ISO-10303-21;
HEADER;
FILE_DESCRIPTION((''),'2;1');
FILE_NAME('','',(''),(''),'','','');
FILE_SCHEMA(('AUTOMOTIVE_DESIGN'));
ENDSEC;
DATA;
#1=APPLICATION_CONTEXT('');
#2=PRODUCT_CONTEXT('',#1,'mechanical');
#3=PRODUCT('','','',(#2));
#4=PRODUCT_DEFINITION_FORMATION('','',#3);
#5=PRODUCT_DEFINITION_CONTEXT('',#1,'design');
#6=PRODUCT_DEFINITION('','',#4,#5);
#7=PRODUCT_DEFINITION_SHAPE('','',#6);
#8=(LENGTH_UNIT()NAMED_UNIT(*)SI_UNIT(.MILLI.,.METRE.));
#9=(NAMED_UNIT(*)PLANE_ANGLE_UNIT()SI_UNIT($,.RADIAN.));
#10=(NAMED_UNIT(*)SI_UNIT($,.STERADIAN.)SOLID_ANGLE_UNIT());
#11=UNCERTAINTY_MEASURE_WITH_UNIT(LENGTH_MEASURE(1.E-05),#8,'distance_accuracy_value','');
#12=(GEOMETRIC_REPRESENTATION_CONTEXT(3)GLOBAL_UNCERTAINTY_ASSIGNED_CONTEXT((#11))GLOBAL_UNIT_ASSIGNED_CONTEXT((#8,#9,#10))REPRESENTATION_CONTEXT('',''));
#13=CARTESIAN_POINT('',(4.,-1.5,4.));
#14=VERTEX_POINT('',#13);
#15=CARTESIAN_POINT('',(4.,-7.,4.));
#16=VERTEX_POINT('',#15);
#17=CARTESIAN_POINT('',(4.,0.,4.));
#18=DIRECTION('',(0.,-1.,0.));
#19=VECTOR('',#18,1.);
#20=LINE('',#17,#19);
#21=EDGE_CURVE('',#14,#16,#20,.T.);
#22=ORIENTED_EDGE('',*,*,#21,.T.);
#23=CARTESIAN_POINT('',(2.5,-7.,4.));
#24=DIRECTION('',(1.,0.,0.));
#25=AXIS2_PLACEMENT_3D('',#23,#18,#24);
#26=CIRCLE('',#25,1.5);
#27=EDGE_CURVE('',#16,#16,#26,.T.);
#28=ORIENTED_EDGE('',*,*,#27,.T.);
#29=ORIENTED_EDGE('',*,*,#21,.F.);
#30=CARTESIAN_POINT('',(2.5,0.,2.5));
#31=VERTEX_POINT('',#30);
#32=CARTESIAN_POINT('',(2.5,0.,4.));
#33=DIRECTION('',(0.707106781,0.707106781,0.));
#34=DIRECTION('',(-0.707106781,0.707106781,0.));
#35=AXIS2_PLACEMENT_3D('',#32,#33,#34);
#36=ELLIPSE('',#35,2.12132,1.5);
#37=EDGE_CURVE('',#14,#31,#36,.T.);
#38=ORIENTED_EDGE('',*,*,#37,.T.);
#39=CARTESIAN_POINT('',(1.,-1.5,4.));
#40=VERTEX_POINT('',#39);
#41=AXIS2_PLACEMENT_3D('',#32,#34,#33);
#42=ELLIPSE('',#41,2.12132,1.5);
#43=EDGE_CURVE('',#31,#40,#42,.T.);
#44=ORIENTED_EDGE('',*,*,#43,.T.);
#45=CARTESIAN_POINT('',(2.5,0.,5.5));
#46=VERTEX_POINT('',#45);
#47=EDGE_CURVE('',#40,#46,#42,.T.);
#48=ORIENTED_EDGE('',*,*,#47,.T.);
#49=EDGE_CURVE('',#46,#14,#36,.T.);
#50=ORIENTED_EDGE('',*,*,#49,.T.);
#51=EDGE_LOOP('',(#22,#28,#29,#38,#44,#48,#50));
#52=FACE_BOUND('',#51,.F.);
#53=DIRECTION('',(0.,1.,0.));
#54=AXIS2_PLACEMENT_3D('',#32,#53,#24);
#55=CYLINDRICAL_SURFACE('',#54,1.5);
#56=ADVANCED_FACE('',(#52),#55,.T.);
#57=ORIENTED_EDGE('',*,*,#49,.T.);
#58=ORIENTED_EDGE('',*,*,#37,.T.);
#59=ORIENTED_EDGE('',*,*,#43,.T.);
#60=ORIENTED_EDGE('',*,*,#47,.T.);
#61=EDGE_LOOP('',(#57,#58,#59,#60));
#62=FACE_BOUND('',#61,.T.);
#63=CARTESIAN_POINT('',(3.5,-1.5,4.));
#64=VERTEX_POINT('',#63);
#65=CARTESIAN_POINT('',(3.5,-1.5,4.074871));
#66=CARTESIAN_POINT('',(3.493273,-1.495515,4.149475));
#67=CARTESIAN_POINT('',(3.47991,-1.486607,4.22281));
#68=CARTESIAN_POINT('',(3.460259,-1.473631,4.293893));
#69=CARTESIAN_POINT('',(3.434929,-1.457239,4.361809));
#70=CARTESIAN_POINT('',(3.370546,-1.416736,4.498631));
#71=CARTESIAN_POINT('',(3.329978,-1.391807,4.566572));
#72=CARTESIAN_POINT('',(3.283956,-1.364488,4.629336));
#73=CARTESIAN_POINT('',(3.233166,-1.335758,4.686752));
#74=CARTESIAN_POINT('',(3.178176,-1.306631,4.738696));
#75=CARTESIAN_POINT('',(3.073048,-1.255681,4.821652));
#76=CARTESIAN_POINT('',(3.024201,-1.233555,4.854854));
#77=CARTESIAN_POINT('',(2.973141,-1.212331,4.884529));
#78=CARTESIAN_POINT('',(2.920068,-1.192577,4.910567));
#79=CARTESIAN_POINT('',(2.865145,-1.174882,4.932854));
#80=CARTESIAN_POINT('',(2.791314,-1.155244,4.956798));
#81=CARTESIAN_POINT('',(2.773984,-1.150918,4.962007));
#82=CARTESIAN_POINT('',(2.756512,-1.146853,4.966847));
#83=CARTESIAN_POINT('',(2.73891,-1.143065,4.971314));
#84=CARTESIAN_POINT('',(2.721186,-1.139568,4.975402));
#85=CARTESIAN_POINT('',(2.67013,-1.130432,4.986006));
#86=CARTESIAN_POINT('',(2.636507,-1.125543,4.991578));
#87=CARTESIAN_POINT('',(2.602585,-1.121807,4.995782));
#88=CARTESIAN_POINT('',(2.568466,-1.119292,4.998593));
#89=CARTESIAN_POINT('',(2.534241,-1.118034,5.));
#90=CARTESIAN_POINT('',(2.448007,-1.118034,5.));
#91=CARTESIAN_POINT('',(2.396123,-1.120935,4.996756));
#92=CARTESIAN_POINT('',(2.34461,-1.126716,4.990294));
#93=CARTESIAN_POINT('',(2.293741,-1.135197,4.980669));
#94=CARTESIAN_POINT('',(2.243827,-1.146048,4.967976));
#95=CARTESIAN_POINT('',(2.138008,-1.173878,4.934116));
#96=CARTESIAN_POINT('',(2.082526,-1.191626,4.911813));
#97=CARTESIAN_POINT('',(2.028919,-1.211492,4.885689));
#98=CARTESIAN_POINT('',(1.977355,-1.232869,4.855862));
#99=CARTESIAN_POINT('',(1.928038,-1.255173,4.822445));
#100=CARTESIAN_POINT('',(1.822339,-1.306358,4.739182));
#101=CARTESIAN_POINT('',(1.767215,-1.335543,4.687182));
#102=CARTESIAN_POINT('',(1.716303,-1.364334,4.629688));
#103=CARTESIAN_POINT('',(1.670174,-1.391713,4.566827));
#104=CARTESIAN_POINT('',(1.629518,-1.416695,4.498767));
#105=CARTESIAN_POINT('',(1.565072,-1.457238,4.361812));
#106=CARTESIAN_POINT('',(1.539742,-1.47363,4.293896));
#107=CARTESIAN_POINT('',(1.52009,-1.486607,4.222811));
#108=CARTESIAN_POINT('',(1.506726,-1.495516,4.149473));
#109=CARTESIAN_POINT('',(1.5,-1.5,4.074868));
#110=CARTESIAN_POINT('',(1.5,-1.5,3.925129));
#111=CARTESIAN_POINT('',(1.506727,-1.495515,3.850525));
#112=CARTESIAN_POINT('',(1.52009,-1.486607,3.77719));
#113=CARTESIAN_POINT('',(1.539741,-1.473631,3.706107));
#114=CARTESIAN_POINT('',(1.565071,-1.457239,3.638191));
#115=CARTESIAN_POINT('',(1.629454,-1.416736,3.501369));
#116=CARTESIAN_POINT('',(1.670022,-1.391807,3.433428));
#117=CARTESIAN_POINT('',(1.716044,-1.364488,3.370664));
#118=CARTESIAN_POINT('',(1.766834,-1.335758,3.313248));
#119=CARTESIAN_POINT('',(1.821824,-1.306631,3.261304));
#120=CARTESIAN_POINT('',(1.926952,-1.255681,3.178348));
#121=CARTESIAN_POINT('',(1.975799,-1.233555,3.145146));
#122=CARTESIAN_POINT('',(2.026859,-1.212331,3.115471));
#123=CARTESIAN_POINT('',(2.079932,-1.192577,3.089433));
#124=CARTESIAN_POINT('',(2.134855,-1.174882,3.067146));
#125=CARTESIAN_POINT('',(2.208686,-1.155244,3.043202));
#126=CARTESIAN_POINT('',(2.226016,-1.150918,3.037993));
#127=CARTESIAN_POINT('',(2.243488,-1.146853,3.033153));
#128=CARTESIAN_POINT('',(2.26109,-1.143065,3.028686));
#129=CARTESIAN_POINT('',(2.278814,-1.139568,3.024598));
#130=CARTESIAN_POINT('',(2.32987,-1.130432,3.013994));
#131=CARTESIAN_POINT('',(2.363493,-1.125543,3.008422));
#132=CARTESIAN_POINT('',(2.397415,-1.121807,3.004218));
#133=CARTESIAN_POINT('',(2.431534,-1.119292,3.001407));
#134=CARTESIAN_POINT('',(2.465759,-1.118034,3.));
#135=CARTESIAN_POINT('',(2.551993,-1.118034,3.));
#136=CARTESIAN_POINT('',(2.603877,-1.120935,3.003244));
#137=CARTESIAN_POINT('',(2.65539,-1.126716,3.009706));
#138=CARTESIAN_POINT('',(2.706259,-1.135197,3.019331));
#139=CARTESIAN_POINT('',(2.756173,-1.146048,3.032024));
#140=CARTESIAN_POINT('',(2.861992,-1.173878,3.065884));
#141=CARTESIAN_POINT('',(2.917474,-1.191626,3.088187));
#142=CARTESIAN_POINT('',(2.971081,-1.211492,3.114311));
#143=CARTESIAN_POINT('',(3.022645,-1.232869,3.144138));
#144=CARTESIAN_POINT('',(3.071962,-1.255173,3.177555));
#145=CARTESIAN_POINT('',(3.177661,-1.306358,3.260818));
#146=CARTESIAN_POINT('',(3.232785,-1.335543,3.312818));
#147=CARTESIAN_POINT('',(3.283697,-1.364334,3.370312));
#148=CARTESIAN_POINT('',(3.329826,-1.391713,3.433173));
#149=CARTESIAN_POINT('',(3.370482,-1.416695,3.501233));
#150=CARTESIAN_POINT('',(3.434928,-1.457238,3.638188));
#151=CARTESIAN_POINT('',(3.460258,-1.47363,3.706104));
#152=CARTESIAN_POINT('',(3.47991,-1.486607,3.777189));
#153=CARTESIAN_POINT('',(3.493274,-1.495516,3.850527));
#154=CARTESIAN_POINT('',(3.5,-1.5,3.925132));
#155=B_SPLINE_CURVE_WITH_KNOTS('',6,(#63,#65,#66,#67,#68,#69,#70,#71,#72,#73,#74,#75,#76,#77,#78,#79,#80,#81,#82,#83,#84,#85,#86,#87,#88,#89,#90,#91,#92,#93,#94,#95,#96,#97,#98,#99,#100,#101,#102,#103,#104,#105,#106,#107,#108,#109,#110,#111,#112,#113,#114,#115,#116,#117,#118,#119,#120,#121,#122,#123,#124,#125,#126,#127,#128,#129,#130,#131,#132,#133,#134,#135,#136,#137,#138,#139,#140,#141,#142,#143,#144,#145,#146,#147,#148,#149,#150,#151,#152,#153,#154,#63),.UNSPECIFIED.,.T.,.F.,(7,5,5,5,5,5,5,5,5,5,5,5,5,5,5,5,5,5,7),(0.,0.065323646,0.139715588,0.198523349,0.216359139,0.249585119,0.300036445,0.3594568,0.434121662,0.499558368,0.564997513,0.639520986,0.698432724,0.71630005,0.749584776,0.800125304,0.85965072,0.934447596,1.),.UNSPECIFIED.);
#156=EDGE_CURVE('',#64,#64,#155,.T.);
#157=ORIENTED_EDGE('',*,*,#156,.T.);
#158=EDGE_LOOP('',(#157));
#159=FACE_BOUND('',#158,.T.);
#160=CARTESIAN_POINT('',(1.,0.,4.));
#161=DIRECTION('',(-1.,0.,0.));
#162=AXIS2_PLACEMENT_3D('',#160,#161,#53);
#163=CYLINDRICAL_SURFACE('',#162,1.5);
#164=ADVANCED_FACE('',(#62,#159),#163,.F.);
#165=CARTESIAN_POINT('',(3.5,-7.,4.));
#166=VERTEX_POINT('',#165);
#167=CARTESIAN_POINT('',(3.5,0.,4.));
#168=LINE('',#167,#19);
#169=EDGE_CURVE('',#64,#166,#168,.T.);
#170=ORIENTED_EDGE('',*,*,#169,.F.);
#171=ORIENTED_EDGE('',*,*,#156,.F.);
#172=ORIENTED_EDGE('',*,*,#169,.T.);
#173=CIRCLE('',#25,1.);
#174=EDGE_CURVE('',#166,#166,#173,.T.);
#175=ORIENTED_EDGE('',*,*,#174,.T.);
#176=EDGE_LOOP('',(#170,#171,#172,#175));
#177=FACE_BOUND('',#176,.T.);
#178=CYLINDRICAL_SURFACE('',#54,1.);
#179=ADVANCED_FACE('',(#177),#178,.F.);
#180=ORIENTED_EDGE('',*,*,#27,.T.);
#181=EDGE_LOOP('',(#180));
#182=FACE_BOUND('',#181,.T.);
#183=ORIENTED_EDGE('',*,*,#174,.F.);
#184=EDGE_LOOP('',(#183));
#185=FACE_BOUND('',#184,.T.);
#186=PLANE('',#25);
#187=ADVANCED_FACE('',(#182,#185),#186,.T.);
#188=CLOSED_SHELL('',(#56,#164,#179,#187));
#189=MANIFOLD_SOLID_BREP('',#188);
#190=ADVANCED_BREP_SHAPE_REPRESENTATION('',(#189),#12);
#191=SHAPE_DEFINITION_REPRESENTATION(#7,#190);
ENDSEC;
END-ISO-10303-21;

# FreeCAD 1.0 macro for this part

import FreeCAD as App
import Part
import Sketcher

doc = App.newDocument("Part")
params = doc.addObject("Spreadsheet::Sheet", "Params")
for row, (alias, value) in enumerate([
    ("sketch1_diameter", "3 mm"),
    ("pad1_length", "3 mm"),
    ("sketch2_diameter", "3 mm"),
    ("sketch2_diameter2", "2 mm"),
    ("pad2_length", "7 mm"),
], start=1):
    params.set(f"A{row}", alias)
    params.set(f"B{row}", "=" + value)
    params.setAlias(f"B{row}", alias)

body = doc.addObject("PartDesign::Body", "Body")

# Sketch on YZ plane
sketch1 = body.newObject("Sketcher::SketchObject", "Sketch")
sketch1.AttachmentSupport = (doc.getObject("YZ_Plane"), [""])
sketch1.MapMode = "FlatFace"
sketch1.AttachmentOffset = App.Placement(App.Vector(0, 0, 1), App.Rotation())
sketch1.addGeometry(Part.Circle(App.Vector(0, 4, 0), App.Vector(0, 0, 1), 1.5), False)
sketch1.addConstraint([
    Sketcher.Constraint("PointOnObject", 0, 3, -2),
    Sketcher.Constraint("Diameter", 0, 3.0),
    Sketcher.Constraint("DistanceY", -1, 1, 0, 3, 4.0),
])
sketch1.setExpression("Constraints[1]", "Params.sketch1_diameter")
pad1 = body.newObject("PartDesign::Pad", "Pad")
pad1.Profile = sketch1
pad1.setExpression("Length", "Params.pad1_length")
body2 = doc.addObject("PartDesign::Body", "Body001")

# Sketch on XZ plane
sketch2 = body2.newObject("Sketcher::SketchObject", "Sketch001")
sketch2.AttachmentSupport = (doc.getObject("XZ_Plane001"), [""])
sketch2.MapMode = "FlatFace"
sketch2.addGeometry([
    Part.Circle(App.Vector(2.5, 4, 0), App.Vector(0, 0, 1), 1.5),
    Part.Circle(App.Vector(2.5, 4, 0), App.Vector(0, 0, 1), 1),
], False)
sketch2.addConstraint([
    Sketcher.Constraint("Coincident", 1, 3, 0, 3),
    Sketcher.Constraint("Diameter", 0, 3.0),
    Sketcher.Constraint("Diameter", 1, 2.0),
    Sketcher.Constraint("DistanceY", -1, 1, 0, 3, 4.0),
    Sketcher.Constraint("DistanceX", -1, 1, 0, 3, 2.5),
])
sketch2.setExpression("Constraints[1]", "Params.sketch2_diameter")
sketch2.setExpression("Constraints[2]", "Params.sketch2_diameter2")
pad2 = body2.newObject("PartDesign::Pad", "Pad001")
pad2.Profile = sketch2
pad2.setExpression("Length", "Params.pad2_length")
doc.recompute()

boolean = body2.newObject("PartDesign::Boolean", "Boolean")
boolean.Type = "Cut"
boolean.addObjects([body])

doc.recompute()
